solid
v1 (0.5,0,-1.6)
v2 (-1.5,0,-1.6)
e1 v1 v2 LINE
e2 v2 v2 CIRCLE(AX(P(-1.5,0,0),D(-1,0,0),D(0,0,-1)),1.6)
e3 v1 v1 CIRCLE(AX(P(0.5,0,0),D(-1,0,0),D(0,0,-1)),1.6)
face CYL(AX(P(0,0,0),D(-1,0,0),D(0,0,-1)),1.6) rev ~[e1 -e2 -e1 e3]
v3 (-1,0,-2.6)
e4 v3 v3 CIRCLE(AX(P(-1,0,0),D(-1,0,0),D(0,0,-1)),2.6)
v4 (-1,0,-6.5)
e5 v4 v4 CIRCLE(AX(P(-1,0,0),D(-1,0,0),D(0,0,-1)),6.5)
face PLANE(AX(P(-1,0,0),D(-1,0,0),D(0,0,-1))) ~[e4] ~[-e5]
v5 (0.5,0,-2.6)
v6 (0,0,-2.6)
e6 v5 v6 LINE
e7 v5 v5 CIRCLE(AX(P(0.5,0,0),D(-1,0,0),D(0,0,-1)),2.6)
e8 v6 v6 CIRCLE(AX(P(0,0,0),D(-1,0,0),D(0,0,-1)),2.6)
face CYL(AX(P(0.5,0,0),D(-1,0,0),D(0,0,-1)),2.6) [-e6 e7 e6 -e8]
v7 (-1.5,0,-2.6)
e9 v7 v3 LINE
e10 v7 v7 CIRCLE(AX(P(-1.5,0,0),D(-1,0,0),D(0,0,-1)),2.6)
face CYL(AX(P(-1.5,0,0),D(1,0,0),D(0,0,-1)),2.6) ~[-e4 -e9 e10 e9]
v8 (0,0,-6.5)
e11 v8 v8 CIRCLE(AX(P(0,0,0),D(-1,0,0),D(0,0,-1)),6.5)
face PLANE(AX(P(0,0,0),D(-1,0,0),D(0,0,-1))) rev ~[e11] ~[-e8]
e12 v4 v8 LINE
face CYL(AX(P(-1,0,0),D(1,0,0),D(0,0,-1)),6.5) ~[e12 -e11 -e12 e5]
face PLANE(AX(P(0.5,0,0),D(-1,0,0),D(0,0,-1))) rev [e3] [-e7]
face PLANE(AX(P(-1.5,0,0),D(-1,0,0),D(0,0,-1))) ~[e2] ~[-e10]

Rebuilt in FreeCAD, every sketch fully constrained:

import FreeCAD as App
import Part
import Sketcher

doc = App.newDocument("Part")
body = doc.addObject("PartDesign::Body", "Body")

# Sketch on XZ plane
sketch1 = body.newObject("Sketcher::SketchObject", "Sketch")
sketch1.AttachmentSupport = (doc.getObject("XZ_Plane"), [""])
sketch1.MapMode = "FlatFace"
sketch1.addGeometry(Part.LineSegment(App.Vector(0.5, -1.6, 0), App.Vector(0.5, -2.6, 0)), False)
sketch1.addGeometry(Part.LineSegment(App.Vector(0.5, -2.6, 0), App.Vector(0, -2.6, 0)), False)
sketch1.addGeometry(Part.LineSegment(App.Vector(0, -2.6, 0), App.Vector(0, -6.5, 0)), False)
sketch1.addGeometry(Part.LineSegment(App.Vector(0, -6.5, 0), App.Vector(-1, -6.5, 0)), False)
sketch1.addGeometry(Part.LineSegment(App.Vector(-1, -6.5, 0), App.Vector(-1, -2.6, 0)), False)
sketch1.addGeometry(Part.LineSegment(App.Vector(-1, -2.6, 0), App.Vector(-1.5, -2.6, 0)), False)
sketch1.addGeometry(Part.LineSegment(App.Vector(-1.5, -2.6, 0), App.Vector(-1.5, -1.6, 0)), False)
sketch1.addGeometry(Part.LineSegment(App.Vector(-1.5, -1.6, 0), App.Vector(0.5, -1.6, 0)), False)
sketch1.addConstraint(Sketcher.Constraint("Coincident", 0, 2, 1, 1))
sketch1.addConstraint(Sketcher.Constraint("Coincident", 1, 2, 2, 1))
sketch1.addConstraint(Sketcher.Constraint("Coincident", 2, 2, 3, 1))
sketch1.addConstraint(Sketcher.Constraint("Coincident", 3, 2, 4, 1))
sketch1.addConstraint(Sketcher.Constraint("Coincident", 4, 2, 5, 1))
sketch1.addConstraint(Sketcher.Constraint("Coincident", 5, 2, 6, 1))
sketch1.addConstraint(Sketcher.Constraint("Coincident", 6, 2, 7, 1))
sketch1.addConstraint(Sketcher.Constraint("Coincident", 7, 2, 0, 1))
sketch1.addConstraint(Sketcher.Constraint("Vertical", 0))
sketch1.addConstraint(Sketcher.Constraint("Horizontal", 1))
sketch1.addConstraint(Sketcher.Constraint("Vertical", 2))
sketch1.addConstraint(Sketcher.Constraint("Horizontal", 3))
sketch1.addConstraint(Sketcher.Constraint("Vertical", 4))
sketch1.addConstraint(Sketcher.Constraint("Horizontal", 5))
sketch1.addConstraint(Sketcher.Constraint("Vertical", 6))
sketch1.addConstraint(Sketcher.Constraint("Horizontal", 7))
sketch1.addConstraint(Sketcher.Constraint("PointOnObject", 1, 2, -2))
sketch1.addConstraint(Sketcher.Constraint("Horizontal", 1, 2, 4, 2))
sketch1.addConstraint(Sketcher.Constraint("Equal", 1, 5))
sketch1.addConstraint(Sketcher.Constraint("Equal", 3, 0))
sketch1.addConstraint(Sketcher.Constraint("DistanceX", 3, 2, 3, 1, 1.0))
sketch1.addConstraint(Sketcher.Constraint("DistanceX", 1, 2, 1, 1, 0.5))
sketch1.addConstraint(Sketcher.Constraint("DistanceY", 2, 2, -1, 1, 6.5))
sketch1.addConstraint(Sketcher.Constraint("DistanceY", 6, 2, -1, 1, 1.6))
revolution = body.newObject("PartDesign::Revolution", "Revolution")
revolution.Profile = sketch1
revolution.ReferenceAxis = (sketch1, ["H_Axis"])
revolution.Angle = 360

doc.recompute()
